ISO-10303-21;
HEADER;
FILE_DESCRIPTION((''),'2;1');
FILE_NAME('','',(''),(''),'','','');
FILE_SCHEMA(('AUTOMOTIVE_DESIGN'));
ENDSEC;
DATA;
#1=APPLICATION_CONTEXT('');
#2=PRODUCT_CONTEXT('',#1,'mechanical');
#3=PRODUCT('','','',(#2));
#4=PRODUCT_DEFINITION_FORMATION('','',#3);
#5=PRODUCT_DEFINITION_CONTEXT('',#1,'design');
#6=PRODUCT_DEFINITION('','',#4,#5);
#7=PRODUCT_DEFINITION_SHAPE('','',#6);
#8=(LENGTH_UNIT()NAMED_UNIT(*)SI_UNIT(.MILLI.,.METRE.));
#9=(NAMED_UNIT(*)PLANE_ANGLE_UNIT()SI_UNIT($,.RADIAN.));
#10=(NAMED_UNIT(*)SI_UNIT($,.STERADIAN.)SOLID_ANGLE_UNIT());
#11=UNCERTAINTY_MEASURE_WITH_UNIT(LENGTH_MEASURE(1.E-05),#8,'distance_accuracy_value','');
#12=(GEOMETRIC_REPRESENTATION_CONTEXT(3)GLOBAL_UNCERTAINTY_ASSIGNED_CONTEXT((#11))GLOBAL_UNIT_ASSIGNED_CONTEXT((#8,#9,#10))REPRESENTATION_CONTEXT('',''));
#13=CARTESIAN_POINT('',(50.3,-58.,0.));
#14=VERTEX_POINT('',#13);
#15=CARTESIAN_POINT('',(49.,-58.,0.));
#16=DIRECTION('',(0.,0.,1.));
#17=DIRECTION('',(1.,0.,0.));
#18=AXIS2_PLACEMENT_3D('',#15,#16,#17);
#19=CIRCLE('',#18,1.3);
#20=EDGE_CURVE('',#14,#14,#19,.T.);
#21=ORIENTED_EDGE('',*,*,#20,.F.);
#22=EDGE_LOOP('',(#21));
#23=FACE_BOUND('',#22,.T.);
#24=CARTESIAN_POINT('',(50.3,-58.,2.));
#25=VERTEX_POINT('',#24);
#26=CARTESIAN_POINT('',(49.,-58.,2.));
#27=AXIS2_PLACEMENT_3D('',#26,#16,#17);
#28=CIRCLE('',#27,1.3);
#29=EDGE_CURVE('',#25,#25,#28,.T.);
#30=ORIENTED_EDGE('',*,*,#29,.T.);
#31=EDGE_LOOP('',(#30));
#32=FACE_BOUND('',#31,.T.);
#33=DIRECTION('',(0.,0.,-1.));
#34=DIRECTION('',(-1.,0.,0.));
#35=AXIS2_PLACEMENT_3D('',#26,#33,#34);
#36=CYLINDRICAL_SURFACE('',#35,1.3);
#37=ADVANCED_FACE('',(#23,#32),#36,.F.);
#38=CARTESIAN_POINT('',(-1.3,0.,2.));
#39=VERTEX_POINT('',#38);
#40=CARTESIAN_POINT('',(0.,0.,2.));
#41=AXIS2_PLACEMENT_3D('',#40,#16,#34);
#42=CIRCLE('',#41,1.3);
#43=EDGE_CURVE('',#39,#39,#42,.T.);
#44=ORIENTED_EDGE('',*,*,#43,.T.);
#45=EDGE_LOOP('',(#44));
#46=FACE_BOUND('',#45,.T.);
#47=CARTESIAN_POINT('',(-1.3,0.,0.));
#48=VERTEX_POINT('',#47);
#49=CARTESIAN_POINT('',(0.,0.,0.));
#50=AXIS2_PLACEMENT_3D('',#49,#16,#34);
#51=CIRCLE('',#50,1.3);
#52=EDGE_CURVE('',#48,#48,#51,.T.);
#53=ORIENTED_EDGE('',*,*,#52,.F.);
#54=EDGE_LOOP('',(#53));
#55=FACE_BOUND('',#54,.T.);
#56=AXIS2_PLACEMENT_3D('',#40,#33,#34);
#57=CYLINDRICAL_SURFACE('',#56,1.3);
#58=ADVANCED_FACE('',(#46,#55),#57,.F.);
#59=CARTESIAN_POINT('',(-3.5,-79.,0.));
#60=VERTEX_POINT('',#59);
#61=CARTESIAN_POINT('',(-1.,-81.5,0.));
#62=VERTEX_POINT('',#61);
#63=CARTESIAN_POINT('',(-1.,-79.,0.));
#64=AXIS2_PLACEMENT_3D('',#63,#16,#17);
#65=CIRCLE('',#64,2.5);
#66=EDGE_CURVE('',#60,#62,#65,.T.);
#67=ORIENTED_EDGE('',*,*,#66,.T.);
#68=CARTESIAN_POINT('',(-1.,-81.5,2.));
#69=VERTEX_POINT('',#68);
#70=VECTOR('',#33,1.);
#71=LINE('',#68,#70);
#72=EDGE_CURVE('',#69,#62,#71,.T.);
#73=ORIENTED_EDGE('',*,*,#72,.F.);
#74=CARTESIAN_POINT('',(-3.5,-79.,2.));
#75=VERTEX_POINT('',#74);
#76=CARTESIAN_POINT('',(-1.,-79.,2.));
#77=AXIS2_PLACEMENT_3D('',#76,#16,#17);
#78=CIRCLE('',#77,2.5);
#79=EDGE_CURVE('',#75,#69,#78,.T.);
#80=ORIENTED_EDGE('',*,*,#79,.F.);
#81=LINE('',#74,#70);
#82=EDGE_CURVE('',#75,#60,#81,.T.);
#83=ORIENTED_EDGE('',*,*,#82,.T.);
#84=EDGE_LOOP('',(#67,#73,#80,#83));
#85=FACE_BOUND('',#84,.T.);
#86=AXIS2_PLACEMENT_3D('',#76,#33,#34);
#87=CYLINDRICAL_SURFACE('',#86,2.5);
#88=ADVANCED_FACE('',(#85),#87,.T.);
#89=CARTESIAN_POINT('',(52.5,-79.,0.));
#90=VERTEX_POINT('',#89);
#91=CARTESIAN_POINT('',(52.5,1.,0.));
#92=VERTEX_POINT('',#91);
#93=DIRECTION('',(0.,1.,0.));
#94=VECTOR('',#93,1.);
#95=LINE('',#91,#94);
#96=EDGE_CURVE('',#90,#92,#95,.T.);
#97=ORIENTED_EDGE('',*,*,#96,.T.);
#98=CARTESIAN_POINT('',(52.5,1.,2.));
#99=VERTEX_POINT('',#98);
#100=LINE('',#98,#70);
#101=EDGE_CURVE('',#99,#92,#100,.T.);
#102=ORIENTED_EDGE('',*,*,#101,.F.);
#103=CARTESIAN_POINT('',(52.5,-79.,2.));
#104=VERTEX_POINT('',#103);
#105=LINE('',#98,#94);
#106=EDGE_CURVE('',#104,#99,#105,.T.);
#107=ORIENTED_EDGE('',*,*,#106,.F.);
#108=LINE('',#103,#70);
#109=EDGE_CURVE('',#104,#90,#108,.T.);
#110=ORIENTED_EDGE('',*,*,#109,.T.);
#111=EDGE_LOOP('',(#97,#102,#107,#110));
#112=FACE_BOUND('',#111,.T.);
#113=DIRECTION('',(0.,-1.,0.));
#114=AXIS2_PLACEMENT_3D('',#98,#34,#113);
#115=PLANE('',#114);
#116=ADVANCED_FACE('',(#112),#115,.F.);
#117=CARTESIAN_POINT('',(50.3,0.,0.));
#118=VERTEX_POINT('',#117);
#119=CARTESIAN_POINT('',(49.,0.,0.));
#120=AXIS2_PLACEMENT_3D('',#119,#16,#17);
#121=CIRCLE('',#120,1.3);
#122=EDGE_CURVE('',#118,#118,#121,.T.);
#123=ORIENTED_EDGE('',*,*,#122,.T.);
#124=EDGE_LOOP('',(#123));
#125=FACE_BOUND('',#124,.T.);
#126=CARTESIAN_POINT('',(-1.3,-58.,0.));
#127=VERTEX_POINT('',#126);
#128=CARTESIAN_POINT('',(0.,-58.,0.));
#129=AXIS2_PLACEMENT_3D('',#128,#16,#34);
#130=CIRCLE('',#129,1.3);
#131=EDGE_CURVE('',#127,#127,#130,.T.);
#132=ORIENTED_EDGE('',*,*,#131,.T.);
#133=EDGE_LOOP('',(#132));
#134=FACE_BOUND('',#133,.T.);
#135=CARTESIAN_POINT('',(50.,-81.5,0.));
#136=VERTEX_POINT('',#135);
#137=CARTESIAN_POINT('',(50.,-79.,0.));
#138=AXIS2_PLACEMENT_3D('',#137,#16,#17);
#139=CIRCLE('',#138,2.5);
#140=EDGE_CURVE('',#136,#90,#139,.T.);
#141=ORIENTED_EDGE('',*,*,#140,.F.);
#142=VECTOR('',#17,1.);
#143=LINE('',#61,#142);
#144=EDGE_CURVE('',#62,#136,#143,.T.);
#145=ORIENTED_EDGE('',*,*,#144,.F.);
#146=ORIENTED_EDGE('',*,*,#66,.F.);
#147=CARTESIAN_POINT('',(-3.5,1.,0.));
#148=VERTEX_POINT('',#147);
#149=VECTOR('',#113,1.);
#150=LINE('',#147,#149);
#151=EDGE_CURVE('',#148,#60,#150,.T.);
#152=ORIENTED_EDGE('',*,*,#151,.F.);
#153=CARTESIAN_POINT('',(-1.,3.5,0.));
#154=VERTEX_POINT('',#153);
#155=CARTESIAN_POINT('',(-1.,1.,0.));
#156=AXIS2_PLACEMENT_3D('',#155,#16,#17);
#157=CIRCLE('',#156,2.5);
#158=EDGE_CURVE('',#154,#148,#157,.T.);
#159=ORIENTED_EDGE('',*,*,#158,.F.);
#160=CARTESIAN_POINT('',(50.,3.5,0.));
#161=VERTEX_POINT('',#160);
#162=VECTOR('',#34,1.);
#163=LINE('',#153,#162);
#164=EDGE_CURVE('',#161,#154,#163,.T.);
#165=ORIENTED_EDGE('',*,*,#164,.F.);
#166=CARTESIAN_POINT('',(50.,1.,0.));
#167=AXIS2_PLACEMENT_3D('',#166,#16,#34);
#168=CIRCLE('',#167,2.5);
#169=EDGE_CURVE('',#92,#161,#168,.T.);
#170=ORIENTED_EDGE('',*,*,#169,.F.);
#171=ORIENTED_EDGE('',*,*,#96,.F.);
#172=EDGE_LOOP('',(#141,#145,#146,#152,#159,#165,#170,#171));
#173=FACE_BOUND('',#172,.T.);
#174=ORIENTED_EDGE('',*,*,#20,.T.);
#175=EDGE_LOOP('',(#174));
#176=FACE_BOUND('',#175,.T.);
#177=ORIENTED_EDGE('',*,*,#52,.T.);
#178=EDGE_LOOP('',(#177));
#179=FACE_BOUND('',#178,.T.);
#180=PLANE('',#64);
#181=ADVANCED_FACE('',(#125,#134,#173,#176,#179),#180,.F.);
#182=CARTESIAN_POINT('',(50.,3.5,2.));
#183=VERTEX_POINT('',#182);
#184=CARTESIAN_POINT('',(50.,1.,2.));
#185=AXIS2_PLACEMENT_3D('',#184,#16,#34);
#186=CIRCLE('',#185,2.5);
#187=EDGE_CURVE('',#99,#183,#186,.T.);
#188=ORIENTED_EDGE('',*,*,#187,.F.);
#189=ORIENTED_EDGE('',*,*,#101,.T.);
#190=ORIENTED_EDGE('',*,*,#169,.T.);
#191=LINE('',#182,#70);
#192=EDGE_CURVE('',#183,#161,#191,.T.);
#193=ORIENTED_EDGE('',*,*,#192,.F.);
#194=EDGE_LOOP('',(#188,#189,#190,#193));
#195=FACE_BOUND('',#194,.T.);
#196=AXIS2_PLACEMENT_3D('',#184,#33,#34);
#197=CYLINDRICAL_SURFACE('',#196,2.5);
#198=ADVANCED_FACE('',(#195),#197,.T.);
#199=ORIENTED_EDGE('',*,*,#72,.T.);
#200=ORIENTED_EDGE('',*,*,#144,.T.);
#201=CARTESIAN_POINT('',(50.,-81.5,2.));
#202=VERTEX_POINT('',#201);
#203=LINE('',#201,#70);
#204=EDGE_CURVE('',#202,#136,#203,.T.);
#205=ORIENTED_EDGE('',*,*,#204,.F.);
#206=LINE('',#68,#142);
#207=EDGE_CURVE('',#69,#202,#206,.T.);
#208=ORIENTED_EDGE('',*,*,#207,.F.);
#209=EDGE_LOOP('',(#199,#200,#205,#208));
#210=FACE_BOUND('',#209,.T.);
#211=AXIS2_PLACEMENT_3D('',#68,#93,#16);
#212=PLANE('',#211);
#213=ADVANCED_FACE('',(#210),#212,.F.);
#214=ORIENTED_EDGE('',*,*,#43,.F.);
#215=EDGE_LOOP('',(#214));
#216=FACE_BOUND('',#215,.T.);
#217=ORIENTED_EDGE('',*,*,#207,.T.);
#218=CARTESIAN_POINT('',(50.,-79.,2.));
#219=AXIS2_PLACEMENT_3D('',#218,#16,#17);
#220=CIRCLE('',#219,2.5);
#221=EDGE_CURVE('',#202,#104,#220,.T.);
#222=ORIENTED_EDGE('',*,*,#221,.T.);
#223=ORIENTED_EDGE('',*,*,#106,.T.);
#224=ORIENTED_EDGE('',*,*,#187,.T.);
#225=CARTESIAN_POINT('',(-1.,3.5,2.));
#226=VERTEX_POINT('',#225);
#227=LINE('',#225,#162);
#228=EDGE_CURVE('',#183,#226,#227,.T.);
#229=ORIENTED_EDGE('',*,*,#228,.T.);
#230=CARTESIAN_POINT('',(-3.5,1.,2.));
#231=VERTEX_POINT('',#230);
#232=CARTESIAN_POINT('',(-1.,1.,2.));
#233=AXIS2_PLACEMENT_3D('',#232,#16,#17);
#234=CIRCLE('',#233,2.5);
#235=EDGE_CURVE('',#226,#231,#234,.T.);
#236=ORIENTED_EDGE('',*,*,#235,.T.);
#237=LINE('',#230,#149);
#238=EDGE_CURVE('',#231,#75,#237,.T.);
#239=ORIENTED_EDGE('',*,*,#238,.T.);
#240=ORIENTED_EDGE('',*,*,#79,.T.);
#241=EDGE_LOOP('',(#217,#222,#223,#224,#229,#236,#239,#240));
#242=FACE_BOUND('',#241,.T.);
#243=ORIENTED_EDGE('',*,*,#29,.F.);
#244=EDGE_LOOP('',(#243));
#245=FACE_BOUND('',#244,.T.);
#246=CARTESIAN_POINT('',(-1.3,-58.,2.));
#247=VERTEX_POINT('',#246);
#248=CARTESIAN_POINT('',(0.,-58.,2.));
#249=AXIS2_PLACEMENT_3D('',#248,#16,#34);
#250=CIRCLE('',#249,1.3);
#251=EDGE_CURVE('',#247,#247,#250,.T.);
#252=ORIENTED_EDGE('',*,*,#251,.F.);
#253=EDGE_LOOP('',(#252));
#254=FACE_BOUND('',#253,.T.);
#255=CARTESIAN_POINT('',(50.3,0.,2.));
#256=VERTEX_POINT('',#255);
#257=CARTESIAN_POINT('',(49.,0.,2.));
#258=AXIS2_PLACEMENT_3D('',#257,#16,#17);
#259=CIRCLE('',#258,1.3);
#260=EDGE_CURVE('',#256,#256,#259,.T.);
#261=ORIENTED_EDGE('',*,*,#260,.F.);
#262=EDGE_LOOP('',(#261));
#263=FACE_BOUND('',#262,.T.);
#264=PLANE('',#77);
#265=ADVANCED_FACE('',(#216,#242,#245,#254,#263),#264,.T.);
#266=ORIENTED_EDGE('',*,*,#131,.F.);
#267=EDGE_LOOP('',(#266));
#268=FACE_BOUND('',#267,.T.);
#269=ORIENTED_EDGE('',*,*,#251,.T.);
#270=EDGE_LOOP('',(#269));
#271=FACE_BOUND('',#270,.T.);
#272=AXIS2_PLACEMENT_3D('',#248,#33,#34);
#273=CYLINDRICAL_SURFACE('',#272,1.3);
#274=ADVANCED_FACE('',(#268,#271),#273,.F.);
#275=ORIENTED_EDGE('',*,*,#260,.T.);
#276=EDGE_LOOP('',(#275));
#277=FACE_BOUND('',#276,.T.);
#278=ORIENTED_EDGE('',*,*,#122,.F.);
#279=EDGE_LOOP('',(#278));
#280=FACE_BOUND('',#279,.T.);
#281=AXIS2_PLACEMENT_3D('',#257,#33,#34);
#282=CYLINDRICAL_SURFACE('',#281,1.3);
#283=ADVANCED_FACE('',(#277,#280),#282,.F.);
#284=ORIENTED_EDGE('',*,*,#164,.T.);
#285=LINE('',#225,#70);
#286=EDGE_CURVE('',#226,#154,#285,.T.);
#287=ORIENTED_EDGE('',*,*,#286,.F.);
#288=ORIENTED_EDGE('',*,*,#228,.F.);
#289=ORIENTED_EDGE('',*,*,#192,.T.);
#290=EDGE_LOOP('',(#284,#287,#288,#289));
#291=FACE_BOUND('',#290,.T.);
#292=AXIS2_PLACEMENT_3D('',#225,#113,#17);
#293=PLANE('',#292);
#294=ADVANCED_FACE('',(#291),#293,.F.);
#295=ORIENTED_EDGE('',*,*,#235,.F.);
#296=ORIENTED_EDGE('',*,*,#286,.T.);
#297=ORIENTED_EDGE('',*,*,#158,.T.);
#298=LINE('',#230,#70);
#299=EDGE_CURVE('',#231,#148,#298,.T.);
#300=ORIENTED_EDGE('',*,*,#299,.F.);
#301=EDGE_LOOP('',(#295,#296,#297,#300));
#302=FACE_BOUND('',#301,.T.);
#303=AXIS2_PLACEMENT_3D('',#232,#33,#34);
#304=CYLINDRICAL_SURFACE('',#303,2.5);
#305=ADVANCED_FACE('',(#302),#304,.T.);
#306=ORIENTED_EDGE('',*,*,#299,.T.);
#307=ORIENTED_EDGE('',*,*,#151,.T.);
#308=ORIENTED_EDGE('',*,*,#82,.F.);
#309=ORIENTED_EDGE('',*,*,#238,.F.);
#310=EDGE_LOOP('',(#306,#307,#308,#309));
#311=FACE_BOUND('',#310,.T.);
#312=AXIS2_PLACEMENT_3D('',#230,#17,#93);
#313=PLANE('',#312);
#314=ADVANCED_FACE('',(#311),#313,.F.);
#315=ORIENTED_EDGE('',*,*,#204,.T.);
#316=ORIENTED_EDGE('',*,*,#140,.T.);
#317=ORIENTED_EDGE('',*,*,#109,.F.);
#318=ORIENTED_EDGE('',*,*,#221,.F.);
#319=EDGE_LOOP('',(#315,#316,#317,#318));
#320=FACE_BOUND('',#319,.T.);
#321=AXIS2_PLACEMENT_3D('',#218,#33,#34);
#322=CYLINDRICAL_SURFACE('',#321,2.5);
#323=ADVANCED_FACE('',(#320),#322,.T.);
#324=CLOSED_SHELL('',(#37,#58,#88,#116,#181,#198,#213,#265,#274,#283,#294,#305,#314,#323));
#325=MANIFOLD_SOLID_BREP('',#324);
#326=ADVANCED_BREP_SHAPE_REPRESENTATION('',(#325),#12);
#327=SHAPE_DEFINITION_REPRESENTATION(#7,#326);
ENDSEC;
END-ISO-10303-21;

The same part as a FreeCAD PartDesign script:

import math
import FreeCAD as App
import Part
import Sketcher
Q = App.Units.Quantity

doc = App.newDocument("Part")
body = doc.addObject("PartDesign::Body", "Body")

# Sketch on XY plane
sketch1 = body.newObject("Sketcher::SketchObject", "Sketch")
sketch1.AttachmentSupport = (doc.getObject("XY_Plane"), [""])
sketch1.MapMode = "FlatFace"
sketch1.addGeometry(Part.LineSegment(App.Vector(50, 3.5, 0), App.Vector(-1, 3.5, 0)), False)
sketch1.addGeometry(Part.ArcOfCircle(Part.Circle(App.Vector(-1, 1, 0), App.Vector(0, 0, 1), 2.5), math.radians(90), math.radians(180)), False)
sketch1.addGeometry(Part.LineSegment(App.Vector(-3.5, 1, 0), App.Vector(-3.5, -79, 0)), False)
sketch1.addGeometry(Part.ArcOfCircle(Part.Circle(App.Vector(-1, -79, 0), App.Vector(0, 0, 1), 2.5), math.radians(180), math.radians(270)), False)
sketch1.addGeometry(Part.LineSegment(App.Vector(-1, -81.5, 0), App.Vector(50, -81.5, 0)), False)
sketch1.addGeometry(Part.ArcOfCircle(Part.Circle(App.Vector(50, -79, 0), App.Vector(0, 0, 1), 2.5), math.radians(-90), math.radians(0)), False)
sketch1.addGeometry(Part.LineSegment(App.Vector(52.5, -79, 0), App.Vector(52.5, 1, 0)), False)
sketch1.addGeometry(Part.ArcOfCircle(Part.Circle(App.Vector(50, 1, 0), App.Vector(0, 0, 1), 2.5), math.radians(0), math.radians(90)), False)
sketch1.addGeometry(Part.Circle(App.Vector(49, -58, 0), App.Vector(0, 0, 1), 1.3), False)
sketch1.addGeometry(Part.Circle(App.Vector(0, -58, 0), App.Vector(0, 0, 1), 1.3), False)
sketch1.addGeometry(Part.Circle(App.Vector(49, 0, 0), App.Vector(0, 0, 1), 1.3), False)
sketch1.addGeometry(Part.Circle(App.Vector(0, 0, 0), App.Vector(0, 0, 1), 1.3), False)
sketch1.addConstraint(Sketcher.Constraint("Tangent", 0, 2, 1, 1))
sketch1.addConstraint(Sketcher.Constraint("Tangent", 1, 2, 2, 1))
sketch1.addConstraint(Sketcher.Constraint("Tangent", 2, 2, 3, 1))
sketch1.addConstraint(Sketcher.Constraint("Tangent", 3, 2, 4, 1))
sketch1.addConstraint(Sketcher.Constraint("Tangent", 4, 2, 5, 1))
sketch1.addConstraint(Sketcher.Constraint("Tangent", 5, 2, 6, 1))
sketch1.addConstraint(Sketcher.Constraint("Tangent", 6, 2, 7, 1))
sketch1.addConstraint(Sketcher.Constraint("Tangent", 7, 2, 0, 1))
sketch1.addConstraint(Sketcher.Constraint("Horizontal", 0))
sketch1.addConstraint(Sketcher.Constraint("Vertical", 2))
sketch1.addConstraint(Sketcher.Constraint("Horizontal", 4))
sketch1.addConstraint(Sketcher.Constraint("Vertical", 6))
sketch1.addConstraint(Sketcher.Constraint("Coincident", 11, 3, -1, 1))
sketch1.addConstraint(Sketcher.Constraint("Equal", 1, 3))
sketch1.addConstraint(Sketcher.Constraint("Equal", 3, 5))
sketch1.addConstraint(Sketcher.Constraint("Equal", 5, 7))
sketch1.addConstraint(Sketcher.Constraint("Equal", 8, 9))
sketch1.addConstraint(Sketcher.Constraint("Equal", 9, 10))
sketch1.addConstraint(Sketcher.Constraint("Equal", 10, 11))
sketch1.addConstraint(Sketcher.Constraint("PointOnObject", 9, 3, -2))
sketch1.addConstraint(Sketcher.Constraint("PointOnObject", 10, 3, -1))
sketch1.addConstraint(Sketcher.Constraint("Horizontal", 8, 3, 9, 3))
sketch1.addConstraint(Sketcher.Constraint("Vertical", 8, 3, 10, 3))
sketch1.addConstraint(Sketcher.Constraint("Diameter", 8, Q("2.6 mm")))
sketch1.addConstraint(Sketcher.Constraint("Radius", 1, Q("2.5 mm")))
sketch1.addConstraint(Sketcher.Constraint("DistanceX", 0, 2, 0, 1, Q("51 mm")))
sketch1.addConstraint(Sketcher.Constraint("DistanceY", 2, 2, 2, 1, Q("80 mm")))
sketch1.addConstraint(Sketcher.Constraint("DistanceX", 1, 3, -1, 1, Q("1 mm")))
sketch1.addConstraint(Sketcher.Constraint("DistanceY", -1, 1, 1, 3, Q("1 mm")))
sketch1.addConstraint(Sketcher.Constraint("DistanceX", -1, 1, 8, 3, Q("49 mm")))
sketch1.addConstraint(Sketcher.Constraint("DistanceY", 8, 3, -1, 1, Q("58 mm")))
pad1 = body.newObject("PartDesign::Pad", "Pad")
pad1.Profile = sketch1
pad1.Length = 2

doc.recompute()
